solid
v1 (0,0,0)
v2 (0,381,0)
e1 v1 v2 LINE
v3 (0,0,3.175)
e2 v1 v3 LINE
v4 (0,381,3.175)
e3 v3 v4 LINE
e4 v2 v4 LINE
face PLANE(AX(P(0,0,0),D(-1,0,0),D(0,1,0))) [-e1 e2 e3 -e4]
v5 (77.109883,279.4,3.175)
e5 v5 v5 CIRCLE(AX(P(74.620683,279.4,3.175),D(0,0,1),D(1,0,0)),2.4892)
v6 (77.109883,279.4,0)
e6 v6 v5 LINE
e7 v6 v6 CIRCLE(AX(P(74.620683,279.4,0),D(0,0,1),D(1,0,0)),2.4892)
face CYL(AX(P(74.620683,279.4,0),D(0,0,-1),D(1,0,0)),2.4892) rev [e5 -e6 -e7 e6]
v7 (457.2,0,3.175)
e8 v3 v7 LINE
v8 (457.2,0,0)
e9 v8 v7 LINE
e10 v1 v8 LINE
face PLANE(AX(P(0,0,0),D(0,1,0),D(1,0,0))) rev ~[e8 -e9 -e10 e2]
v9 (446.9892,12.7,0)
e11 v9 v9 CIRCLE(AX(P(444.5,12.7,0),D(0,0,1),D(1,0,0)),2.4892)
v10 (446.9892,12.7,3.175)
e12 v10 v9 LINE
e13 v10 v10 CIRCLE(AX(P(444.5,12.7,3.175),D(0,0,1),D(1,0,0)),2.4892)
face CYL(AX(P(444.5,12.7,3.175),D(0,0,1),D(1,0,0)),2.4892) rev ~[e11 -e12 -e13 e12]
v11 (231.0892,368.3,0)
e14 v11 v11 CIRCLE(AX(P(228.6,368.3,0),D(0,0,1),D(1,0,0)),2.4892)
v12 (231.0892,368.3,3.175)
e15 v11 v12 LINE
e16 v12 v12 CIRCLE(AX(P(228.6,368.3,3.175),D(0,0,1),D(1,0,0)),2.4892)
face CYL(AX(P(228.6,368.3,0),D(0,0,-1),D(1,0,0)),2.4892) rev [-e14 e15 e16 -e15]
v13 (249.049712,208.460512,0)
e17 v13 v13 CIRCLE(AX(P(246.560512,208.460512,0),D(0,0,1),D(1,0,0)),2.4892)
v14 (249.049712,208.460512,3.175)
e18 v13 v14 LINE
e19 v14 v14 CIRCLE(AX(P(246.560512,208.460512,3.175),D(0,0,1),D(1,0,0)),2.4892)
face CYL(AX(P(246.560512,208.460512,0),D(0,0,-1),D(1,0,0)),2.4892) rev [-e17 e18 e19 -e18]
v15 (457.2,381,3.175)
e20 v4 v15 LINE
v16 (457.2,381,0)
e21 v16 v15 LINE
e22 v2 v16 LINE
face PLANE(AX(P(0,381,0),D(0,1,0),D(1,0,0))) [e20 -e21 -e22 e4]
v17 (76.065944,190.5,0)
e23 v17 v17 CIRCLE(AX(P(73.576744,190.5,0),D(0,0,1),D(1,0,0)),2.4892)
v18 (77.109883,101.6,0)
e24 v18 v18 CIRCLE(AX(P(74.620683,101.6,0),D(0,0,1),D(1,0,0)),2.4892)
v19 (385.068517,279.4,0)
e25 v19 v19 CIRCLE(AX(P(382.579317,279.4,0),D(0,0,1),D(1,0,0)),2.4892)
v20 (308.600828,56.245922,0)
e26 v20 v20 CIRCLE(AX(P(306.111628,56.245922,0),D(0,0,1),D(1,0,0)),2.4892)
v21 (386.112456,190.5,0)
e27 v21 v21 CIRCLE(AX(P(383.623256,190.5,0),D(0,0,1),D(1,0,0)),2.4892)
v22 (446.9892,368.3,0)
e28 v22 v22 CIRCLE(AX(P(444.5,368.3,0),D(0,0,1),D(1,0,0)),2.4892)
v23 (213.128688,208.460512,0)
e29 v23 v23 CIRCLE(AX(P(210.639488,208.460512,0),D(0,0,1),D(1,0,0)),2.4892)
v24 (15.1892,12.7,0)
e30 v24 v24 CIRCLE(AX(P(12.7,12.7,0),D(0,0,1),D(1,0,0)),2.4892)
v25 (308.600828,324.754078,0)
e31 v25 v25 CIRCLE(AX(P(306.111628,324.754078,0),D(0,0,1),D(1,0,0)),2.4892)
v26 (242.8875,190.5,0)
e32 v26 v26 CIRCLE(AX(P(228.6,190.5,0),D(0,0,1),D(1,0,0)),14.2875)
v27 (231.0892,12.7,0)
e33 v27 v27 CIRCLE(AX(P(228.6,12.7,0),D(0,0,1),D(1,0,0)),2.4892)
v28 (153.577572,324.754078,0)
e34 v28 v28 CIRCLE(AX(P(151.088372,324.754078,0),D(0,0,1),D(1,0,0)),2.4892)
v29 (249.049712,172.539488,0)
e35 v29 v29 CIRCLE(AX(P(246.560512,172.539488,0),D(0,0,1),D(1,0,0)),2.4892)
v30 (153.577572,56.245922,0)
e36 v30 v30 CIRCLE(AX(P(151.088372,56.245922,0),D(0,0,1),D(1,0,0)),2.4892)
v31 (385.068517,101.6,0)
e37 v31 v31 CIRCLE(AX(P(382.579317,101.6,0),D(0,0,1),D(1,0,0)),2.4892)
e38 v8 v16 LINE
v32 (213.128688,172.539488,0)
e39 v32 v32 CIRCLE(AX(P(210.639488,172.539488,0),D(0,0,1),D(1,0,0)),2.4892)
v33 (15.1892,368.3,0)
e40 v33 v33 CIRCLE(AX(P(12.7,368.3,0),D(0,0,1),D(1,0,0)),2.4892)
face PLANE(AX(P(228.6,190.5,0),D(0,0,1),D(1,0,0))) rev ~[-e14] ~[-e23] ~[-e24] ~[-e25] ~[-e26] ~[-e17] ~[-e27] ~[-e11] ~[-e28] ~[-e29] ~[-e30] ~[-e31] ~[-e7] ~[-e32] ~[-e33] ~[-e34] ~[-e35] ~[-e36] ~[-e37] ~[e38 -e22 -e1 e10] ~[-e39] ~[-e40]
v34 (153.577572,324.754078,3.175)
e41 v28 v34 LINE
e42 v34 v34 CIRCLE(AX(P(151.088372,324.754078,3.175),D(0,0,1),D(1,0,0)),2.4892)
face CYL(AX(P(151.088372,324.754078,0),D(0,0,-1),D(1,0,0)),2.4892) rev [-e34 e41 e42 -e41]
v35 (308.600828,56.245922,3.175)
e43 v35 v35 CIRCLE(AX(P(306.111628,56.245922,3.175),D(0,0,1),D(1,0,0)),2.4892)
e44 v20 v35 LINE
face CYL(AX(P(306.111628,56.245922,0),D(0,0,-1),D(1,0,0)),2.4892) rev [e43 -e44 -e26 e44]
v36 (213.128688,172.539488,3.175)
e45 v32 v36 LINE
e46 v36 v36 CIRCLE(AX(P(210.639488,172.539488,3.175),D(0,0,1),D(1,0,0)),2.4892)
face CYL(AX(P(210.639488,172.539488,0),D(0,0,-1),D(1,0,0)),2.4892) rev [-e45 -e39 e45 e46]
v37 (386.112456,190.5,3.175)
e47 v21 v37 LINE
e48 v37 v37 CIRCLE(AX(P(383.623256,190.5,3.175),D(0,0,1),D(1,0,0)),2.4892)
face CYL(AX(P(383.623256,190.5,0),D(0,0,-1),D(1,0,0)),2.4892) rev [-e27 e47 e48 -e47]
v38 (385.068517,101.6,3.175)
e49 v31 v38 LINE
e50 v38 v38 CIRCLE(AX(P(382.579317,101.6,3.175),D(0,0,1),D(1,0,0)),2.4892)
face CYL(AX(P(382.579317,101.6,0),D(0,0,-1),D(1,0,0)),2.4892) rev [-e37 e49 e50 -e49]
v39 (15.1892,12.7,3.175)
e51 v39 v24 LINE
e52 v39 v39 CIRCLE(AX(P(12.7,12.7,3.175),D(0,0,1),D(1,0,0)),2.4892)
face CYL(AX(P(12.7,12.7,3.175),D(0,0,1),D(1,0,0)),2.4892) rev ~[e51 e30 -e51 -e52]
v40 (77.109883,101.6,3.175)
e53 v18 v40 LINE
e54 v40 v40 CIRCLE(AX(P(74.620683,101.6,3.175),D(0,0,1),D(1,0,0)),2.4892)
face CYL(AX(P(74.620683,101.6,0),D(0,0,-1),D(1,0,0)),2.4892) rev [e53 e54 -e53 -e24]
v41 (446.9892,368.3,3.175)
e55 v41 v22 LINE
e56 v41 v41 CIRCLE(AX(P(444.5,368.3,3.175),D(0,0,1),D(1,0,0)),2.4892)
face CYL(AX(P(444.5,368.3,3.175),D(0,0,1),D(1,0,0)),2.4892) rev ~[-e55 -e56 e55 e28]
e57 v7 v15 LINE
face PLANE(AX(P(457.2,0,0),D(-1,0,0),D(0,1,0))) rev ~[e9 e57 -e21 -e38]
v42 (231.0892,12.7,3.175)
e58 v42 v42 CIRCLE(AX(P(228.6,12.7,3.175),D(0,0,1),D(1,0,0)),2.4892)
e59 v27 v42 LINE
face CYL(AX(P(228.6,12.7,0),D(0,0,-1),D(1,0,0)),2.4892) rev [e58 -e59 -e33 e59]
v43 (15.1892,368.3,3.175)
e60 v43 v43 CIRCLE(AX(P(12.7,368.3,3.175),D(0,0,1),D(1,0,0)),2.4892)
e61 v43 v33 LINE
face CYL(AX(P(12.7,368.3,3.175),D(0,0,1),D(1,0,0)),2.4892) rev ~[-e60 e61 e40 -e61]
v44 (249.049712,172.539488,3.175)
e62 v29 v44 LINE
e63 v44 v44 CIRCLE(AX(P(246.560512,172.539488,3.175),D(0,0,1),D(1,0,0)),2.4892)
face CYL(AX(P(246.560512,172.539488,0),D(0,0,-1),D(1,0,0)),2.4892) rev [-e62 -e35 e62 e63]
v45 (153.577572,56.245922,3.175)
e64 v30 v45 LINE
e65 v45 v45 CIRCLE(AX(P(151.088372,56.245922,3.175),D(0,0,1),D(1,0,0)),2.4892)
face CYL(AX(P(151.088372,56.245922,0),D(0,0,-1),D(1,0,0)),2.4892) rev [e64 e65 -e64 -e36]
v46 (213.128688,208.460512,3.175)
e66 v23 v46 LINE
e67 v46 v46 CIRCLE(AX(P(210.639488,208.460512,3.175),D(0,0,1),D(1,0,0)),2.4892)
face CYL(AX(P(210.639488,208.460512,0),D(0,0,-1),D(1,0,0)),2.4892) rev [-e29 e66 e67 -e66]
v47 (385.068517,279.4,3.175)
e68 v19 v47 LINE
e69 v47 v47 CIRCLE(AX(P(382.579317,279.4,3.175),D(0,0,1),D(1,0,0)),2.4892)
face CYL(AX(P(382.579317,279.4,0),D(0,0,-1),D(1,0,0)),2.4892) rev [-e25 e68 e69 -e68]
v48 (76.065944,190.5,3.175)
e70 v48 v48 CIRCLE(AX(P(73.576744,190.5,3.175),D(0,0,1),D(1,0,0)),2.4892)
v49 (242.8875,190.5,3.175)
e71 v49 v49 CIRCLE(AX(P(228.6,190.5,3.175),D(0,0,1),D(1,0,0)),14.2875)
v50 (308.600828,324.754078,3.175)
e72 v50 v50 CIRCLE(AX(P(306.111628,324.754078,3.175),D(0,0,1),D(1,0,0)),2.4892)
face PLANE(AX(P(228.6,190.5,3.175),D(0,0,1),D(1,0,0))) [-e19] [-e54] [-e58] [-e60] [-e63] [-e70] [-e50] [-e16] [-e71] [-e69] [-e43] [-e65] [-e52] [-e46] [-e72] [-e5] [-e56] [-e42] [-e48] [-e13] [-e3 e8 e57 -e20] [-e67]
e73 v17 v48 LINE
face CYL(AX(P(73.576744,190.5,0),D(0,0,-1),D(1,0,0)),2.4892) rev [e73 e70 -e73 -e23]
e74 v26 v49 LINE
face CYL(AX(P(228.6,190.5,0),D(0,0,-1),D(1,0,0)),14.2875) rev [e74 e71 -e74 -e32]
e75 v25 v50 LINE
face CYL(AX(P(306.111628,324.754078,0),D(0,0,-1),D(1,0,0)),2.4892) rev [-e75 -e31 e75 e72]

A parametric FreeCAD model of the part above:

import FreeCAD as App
import Part
import Sketcher
Q = App.Units.Quantity


def add_polygon(sketch, points):
    """Adds a closed chain of lines whose ends are joined by coincident constraints."""
    first, n = sketch.GeometryCount, len(points)
    for a, b in zip(points, points[1:] + points[:1]):
        sketch.addGeometry(Part.LineSegment(App.Vector(*a, 0), App.Vector(*b, 0)), False)
    for i in range(n):
        sketch.addConstraint(Sketcher.Constraint("Coincident", first + i, 2, first + (i + 1) % n, 1))

doc = App.newDocument("Part")
body = doc.addObject("PartDesign::Body", "Body")

sketch1 = doc.addObject("Sketcher::SketchObject", "Sketch")
body.addObject(sketch1)
sketch1.AttachmentSupport = (doc.XY_Plane, [""])
sketch1.MapMode = "FlatFace"
add_polygon(sketch1, [(0, 381), (0, 0), (457.2, 0), (457.2, 381)])
sketch1.addGeometry(Part.Circle(App.Vector(228.6, 12.7, 0), App.Vector(0, 0, 1), 2.4892), False)
sketch1.addGeometry(Part.Circle(App.Vector(151.088372, 56.245922, 0), App.Vector(0, 0, 1), 2.4892), False)
sketch1.addGeometry(Part.Circle(App.Vector(74.620683, 101.6, 0), App.Vector(0, 0, 1), 2.4892), False)
sketch1.addGeometry(Part.Circle(App.Vector(73.576744, 190.5, 0), App.Vector(0, 0, 1), 2.4892), False)
sketch1.addGeometry(Part.Circle(App.Vector(210.639488, 172.539488, 0), App.Vector(0, 0, 1), 2.4892), False)
sketch1.addGeometry(Part.Circle(App.Vector(228.6, 190.5, 0), App.Vector(0, 0, 1), 14.2875), False)
sketch1.addGeometry(Part.Circle(App.Vector(306.111628, 56.245922, 0), App.Vector(0, 0, 1), 2.4892), False)
sketch1.addGeometry(Part.Circle(App.Vector(246.560512, 172.539488, 0), App.Vector(0, 0, 1), 2.4892), False)
sketch1.addGeometry(Part.Circle(App.Vector(382.579317, 101.6, 0), App.Vector(0, 0, 1), 2.4892), False)
sketch1.addGeometry(Part.Circle(App.Vector(383.623256, 190.5, 0), App.Vector(0, 0, 1), 2.4892), False)
sketch1.addGeometry(Part.Circle(App.Vector(74.620683, 279.4, 0), App.Vector(0, 0, 1), 2.4892), False)
sketch1.addGeometry(Part.Circle(App.Vector(210.639488, 208.460512, 0), App.Vector(0, 0, 1), 2.4892), False)
sketch1.addGeometry(Part.Circle(App.Vector(151.088372, 324.754078, 0), App.Vector(0, 0, 1), 2.4892), False)
sketch1.addGeometry(Part.Circle(App.Vector(228.6, 368.3, 0), App.Vector(0, 0, 1), 2.4892), False)
sketch1.addGeometry(Part.Circle(App.Vector(246.560512, 208.460512, 0), App.Vector(0, 0, 1), 2.4892), False)
sketch1.addGeometry(Part.Circle(App.Vector(382.579317, 279.4, 0), App.Vector(0, 0, 1), 2.4892), False)
sketch1.addGeometry(Part.Circle(App.Vector(306.111628, 324.754078, 0), App.Vector(0, 0, 1), 2.4892), False)
sketch1.addConstraint(Sketcher.Constraint("Vertical", 0))
sketch1.addConstraint(Sketcher.Constraint("Horizontal", 1))
sketch1.addConstraint(Sketcher.Constraint("Vertical", 2))
sketch1.addConstraint(Sketcher.Constraint("Horizontal", 3))
sketch1.addConstraint(Sketcher.Constraint("Coincident", 0, 2, -1, 1))
sketch1.addConstraint(Sketcher.Constraint("Equal", 4, 5))
sketch1.addConstraint(Sketcher.Constraint("Equal", 5, 6))
sketch1.addConstraint(Sketcher.Constraint("Equal", 6, 7))
sketch1.addConstraint(Sketcher.Constraint("Equal", 7, 8))
sketch1.addConstraint(Sketcher.Constraint("Equal", 8, 10))
sketch1.addConstraint(Sketcher.Constraint("Equal", 10, 11))
sketch1.addConstraint(Sketcher.Constraint("Equal", 11, 12))
sketch1.addConstraint(Sketcher.Constraint("Equal", 12, 13))
sketch1.addConstraint(Sketcher.Constraint("Equal", 13, 14))
sketch1.addConstraint(Sketcher.Constraint("Equal", 14, 15))
sketch1.addConstraint(Sketcher.Constraint("Equal", 15, 16))
sketch1.addConstraint(Sketcher.Constraint("Equal", 16, 17))
sketch1.addConstraint(Sketcher.Constraint("Equal", 17, 18))
sketch1.addConstraint(Sketcher.Constraint("Equal", 18, 19))
sketch1.addConstraint(Sketcher.Constraint("Equal", 19, 20))
sketch1.addConstraint(Sketcher.Constraint("Horizontal", 7, 3, 9, 3))
sketch1.addConstraint(Sketcher.Constraint("Horizontal", 5, 3, 10, 3))
sketch1.addConstraint(Sketcher.Constraint("Horizontal", 8, 3, 11, 3))
sketch1.addConstraint(Sketcher.Constraint("Horizontal", 6, 3, 12, 3))
sketch1.addConstraint(Sketcher.Constraint("Horizontal", 9, 3, 13, 3))
sketch1.addConstraint(Sketcher.Constraint("Horizontal", 15, 3, 18, 3))
sketch1.addConstraint(Sketcher.Constraint("Horizontal", 14, 3, 19, 3))
sketch1.addConstraint(Sketcher.Constraint("Horizontal", 16, 3, 20, 3))
sketch1.addConstraint(Sketcher.Constraint("Vertical", 4, 3, 9, 3))
sketch1.addConstraint(Sketcher.Constraint("Vertical", 6, 3, 14, 3))
sketch1.addConstraint(Sketcher.Constraint("Vertical", 8, 3, 15, 3))
sketch1.addConstraint(Sketcher.Constraint("Vertical", 5, 3, 16, 3))
sketch1.addConstraint(Sketcher.Constraint("Vertical", 9, 3, 17, 3))
sketch1.addConstraint(Sketcher.Constraint("Vertical", 11, 3, 18, 3))
sketch1.addConstraint(Sketcher.Constraint("Vertical", 12, 3, 19, 3))
sketch1.addConstraint(Sketcher.Constraint("Vertical", 10, 3, 20, 3))
sketch1.addConstraint(Sketcher.Constraint("DistanceX", 1, 1, 1, 2, Q("18 in")))
sketch1.addConstraint(Sketcher.Constraint("DistanceY", 0, 2, 0, 1, Q("15 in")))
sketch1.addConstraint(Sketcher.Constraint("Diameter", 4, Q("0.196 in")))
sketch1.addConstraint(Sketcher.Constraint("Diameter", 9, Q("1.125 in")))
sketch1.addConstraint(Sketcher.Constraint("DistanceX", -1, 1, 4, 3, Q("9 in")))
sketch1.addConstraint(Sketcher.Constraint("DistanceY", -1, 1, 6, 3, Q("4 in")))
sketch1.addConstraint(Sketcher.Constraint("DistanceY", -1, 1, 14, 3, Q("11 in")))
sketch1.addConstraint(Sketcher.Constraint("DistanceY", 4, 3, 7, 3, Q("7 in")))
sketch1.addConstraint(Sketcher.Constraint("DistanceY", 9, 3, 17, 3, Q("7 in")))
sketch1.addConstraint(Sketcher.Constraint("DistanceY", -1, 1, 4, 3, Q("0.5 in")))
sketch1.addConstraint(Sketcher.Constraint("DistanceX", 7, 3, 6, 3, Q("0.0411 in")))
sketch1.addConstraint(Sketcher.Constraint("DistanceX", 12, 3, 13, 3, Q("0.0411 in")))
sketch1.addConstraint(Sketcher.Constraint("DistanceX", -1, 1, 5, 3, 151.088372))
sketch1.addConstraint(Sketcher.Constraint("DistanceX", -1, 1, 8, 3, 210.639488))
sketch1.addConstraint(Sketcher.Constraint("DistanceY", -1, 1, 8, 3, 172.539488))
sketch1.addConstraint(Sketcher.Constraint("DistanceX", -1, 1, 10, 3, 306.111628))
sketch1.addConstraint(Sketcher.Constraint("DistanceX", -1, 1, 11, 3, 246.560512))
sketch1.addConstraint(Sketcher.Constraint("DistanceY", -1, 1, 15, 3, 208.460512))
sketch1.addConstraint(Sketcher.Constraint("DistanceY", -1, 1, 16, 3, 324.754078))
sketch1.addConstraint(Sketcher.Constraint("DistanceX", 6, 3, 5, 3, 76.467689))
sketch1.addConstraint(Sketcher.Constraint("DistanceY", 5, 3, 7, 3, 134.254078))
sketch1.addConstraint(Sketcher.Constraint("DistanceX", 10, 3, 12, 3, 76.467689))
pad1 = doc.addObject("PartDesign::Pad", "Pad")
body.addObject(pad1)
pad1.Profile = sketch1
pad1.Length = Q("0.125 in")

sketch2 = doc.addObject("Sketcher::SketchObject", "Sketch001")
body.addObject(sketch2)
sketch2.AttachmentSupport = (doc.XY_Plane, [""])
sketch2.MapMode = "FlatFace"
sketch2.AttachmentOffset = App.Placement(App.Vector(0, 0, 0.125 * 25.4), App.Rotation())
sketch2.addGeometry(Part.Circle(App.Vector(12.7, 368.3, 0), App.Vector(0, 0, 1), 2.4892), False)
sketch2.addGeometry(Part.Circle(App.Vector(444.5, 368.3, 0), App.Vector(0, 0, 1), 2.4892), False)
sketch2.addGeometry(Part.Circle(App.Vector(444.5, 12.7, 0), App.Vector(0, 0, 1), 2.4892), False)
sketch2.addGeometry(Part.Circle(App.Vector(12.7, 12.7, 0), App.Vector(0, 0, 1), 2.4892), False)
sketch2.addConstraint(Sketcher.Constraint("Equal", 0, 1))
sketch2.addConstraint(Sketcher.Constraint("Equal", 1, 2))
sketch2.addConstraint(Sketcher.Constraint("Equal", 2, 3))
sketch2.addConstraint(Sketcher.Constraint("Horizontal", 0, 3, 1, 3))
sketch2.addConstraint(Sketcher.Constraint("Horizontal", 2, 3, 3, 3))
sketch2.addConstraint(Sketcher.Constraint("Vertical", 1, 3, 2, 3))
sketch2.addConstraint(Sketcher.Constraint("Vertical", 0, 3, 3, 3))
sketch2.addConstraint(Sketcher.Constraint("Diameter", 0, Q("0.196 in")))
sketch2.addConstraint(Sketcher.Constraint("DistanceX", 0, 3, 1, 3, Q("17 in")))
sketch2.addConstraint(Sketcher.Constraint("DistanceY", 2, 3, 1, 3, Q("14 in")))
sketch2.addConstraint(Sketcher.Constraint("DistanceX", -1, 1, 0, 3, Q("0.5 in")))
sketch2.addConstraint(Sketcher.Constraint("DistanceY", -1, 1, 0, 3, Q("14.5 in")))
pocket1 = doc.addObject("PartDesign::Pocket", "Pocket")
body.addObject(pocket1)
pocket1.Profile = sketch2
pocket1.Type = "ThroughAll"

doc.recompute()
